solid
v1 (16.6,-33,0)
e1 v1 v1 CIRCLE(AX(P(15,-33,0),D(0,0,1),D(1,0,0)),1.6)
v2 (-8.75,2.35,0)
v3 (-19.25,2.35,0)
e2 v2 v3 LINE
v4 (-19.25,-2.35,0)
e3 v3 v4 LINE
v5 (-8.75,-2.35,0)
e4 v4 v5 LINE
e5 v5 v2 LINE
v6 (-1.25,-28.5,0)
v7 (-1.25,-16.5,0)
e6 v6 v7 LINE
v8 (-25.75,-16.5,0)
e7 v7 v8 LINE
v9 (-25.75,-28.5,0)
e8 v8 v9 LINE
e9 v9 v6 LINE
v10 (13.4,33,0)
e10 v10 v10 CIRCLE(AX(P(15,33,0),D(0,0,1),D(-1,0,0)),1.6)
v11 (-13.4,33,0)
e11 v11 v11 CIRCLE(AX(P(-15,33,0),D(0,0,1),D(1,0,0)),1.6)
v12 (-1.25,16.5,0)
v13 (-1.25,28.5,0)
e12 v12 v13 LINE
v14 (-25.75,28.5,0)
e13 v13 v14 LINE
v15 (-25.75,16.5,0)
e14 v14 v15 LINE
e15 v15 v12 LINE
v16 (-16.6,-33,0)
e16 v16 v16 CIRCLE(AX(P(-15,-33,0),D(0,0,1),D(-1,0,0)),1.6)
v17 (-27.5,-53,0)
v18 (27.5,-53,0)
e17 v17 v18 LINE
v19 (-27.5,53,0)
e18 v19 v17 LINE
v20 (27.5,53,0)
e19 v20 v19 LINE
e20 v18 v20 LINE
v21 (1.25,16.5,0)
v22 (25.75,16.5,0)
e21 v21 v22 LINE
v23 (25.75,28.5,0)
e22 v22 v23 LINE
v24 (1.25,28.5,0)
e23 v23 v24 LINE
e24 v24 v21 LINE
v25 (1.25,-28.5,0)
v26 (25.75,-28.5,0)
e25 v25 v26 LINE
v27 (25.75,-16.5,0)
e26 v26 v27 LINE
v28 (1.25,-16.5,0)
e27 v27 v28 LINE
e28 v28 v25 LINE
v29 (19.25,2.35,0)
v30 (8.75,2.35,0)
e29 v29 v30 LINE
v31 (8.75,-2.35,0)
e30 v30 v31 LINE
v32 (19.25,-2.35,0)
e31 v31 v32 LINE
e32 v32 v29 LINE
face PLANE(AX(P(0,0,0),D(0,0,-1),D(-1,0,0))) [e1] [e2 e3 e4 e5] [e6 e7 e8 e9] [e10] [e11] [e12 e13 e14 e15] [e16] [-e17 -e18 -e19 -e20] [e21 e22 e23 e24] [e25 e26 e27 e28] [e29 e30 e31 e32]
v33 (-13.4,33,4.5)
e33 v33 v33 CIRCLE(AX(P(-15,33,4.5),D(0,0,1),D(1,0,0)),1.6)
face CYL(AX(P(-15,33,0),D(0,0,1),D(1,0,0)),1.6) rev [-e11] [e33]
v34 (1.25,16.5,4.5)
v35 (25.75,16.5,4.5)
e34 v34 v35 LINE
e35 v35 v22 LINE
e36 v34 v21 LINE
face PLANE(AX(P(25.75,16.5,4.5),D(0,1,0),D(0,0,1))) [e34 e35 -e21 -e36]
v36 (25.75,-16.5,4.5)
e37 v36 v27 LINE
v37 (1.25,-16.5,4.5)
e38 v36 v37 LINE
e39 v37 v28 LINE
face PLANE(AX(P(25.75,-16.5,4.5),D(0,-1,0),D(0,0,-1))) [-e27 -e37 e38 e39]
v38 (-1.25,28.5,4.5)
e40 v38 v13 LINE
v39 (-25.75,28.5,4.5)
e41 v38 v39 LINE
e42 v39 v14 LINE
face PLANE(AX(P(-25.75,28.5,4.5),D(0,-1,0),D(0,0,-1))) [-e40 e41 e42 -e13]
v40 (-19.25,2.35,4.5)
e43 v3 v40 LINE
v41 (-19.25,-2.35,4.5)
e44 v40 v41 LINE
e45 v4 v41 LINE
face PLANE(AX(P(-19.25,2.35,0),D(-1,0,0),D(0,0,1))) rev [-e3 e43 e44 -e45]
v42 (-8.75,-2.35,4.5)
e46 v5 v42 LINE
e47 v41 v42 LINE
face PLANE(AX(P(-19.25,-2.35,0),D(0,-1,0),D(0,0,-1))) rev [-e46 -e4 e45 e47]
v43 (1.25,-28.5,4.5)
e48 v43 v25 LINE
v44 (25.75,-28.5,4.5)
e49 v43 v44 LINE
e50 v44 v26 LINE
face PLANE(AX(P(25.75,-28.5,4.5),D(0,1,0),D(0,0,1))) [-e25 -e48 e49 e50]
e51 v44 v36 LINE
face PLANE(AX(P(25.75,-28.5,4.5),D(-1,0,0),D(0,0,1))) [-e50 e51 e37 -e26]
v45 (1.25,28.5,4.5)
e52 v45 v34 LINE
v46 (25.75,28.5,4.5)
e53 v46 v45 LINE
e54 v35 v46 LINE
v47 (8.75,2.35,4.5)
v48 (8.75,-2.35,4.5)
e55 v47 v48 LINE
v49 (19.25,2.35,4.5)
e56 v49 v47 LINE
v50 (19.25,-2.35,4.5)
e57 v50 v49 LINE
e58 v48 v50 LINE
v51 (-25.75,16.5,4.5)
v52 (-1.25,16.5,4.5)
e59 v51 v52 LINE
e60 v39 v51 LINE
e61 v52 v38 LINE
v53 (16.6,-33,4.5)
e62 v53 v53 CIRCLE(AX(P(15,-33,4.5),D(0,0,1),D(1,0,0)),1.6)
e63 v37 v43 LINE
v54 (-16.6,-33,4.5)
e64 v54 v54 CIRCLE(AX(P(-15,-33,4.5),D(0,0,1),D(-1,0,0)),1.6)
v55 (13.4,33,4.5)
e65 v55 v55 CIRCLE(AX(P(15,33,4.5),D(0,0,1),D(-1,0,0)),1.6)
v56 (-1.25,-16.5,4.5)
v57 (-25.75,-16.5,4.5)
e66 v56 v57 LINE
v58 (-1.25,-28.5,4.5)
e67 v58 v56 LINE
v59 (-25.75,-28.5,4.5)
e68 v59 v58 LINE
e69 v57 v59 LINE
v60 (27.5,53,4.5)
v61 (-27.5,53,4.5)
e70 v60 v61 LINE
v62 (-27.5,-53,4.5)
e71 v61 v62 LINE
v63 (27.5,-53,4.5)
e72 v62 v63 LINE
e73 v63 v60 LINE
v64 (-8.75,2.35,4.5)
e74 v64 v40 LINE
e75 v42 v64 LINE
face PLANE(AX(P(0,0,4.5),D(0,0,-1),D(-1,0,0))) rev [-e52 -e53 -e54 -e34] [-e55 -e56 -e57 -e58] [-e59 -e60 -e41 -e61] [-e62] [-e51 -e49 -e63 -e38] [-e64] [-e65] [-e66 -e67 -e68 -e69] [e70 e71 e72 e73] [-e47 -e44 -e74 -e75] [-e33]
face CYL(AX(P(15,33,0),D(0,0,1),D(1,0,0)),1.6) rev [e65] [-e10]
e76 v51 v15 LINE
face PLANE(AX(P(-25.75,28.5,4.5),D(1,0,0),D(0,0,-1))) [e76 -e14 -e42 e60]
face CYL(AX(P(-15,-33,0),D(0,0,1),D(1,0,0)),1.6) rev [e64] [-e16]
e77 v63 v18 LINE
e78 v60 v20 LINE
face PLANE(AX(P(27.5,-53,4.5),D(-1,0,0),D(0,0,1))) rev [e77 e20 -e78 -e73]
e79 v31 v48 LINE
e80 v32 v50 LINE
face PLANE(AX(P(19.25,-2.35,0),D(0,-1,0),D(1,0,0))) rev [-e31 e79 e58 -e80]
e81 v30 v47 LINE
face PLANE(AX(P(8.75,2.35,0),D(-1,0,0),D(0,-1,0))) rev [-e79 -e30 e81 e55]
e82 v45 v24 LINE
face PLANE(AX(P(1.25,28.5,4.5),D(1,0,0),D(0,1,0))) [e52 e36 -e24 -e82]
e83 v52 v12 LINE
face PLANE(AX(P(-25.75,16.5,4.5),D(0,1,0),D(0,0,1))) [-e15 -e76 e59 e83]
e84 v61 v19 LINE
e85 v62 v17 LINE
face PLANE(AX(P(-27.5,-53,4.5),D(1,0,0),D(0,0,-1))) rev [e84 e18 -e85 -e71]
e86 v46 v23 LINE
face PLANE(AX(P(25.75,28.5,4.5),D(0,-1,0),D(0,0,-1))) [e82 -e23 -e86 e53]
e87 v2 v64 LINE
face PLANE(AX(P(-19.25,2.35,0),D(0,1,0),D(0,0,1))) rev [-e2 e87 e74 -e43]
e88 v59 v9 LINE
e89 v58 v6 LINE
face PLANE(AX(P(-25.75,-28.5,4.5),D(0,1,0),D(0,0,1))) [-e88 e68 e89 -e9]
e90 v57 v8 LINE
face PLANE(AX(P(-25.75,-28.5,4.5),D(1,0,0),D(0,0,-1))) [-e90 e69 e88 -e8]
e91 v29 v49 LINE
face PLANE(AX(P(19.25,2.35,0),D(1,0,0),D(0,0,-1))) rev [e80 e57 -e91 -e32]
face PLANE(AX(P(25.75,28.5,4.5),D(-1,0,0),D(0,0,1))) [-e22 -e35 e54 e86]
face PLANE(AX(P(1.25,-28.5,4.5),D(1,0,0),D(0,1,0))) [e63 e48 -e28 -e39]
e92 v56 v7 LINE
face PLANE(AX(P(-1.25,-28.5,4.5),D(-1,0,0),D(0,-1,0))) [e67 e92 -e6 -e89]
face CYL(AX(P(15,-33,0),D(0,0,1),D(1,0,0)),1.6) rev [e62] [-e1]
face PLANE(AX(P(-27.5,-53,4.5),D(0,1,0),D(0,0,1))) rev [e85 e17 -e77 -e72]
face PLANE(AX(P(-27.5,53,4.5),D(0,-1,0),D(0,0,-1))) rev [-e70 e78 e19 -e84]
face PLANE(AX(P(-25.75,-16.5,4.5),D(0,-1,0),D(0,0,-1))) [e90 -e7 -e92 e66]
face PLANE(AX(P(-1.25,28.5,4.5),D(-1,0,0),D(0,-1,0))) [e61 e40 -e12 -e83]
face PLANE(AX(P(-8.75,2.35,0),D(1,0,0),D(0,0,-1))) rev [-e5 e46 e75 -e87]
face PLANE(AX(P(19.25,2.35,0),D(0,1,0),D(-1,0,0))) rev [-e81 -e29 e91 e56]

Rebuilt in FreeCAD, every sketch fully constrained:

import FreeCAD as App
import Part
import Sketcher

V = App.Vector

doc = App.newDocument("Part")
body = doc.addObject("PartDesign::Body", "Body")

sketch1 = body.newObject("Sketcher::SketchObject", "Sketch")
sketch1.AttachmentSupport = (doc.getObject("XY_Plane"), [""])
sketch1.MapMode = "FlatFace"
sketch1.addGeometry(Part.LineSegment(V(-28, 53, 0), V(-28, -53, 0)), False)
sketch1.addGeometry(Part.LineSegment(V(-28, -53, 0), V(28, -53, 0)), False)
sketch1.addGeometry(Part.LineSegment(V(28, -53, 0), V(28, 53, 0)), False)
sketch1.addGeometry(Part.LineSegment(V(28, 53, 0), V(-28, 53, 0)), False)
sketch1.addGeometry(Part.LineSegment(V(-1, -28, 0), V(-26, -28, 0)), False)
sketch1.addGeometry(Part.LineSegment(V(-26, -28, 0), V(-26, -16, 0)), False)
sketch1.addGeometry(Part.LineSegment(V(-26, -16, 0), V(-1, -16, 0)), False)
sketch1.addGeometry(Part.LineSegment(V(-1, -16, 0), V(-1, -28, 0)), False)
sketch1.addGeometry(Part.LineSegment(V(26, -28, 0), V(1, -28, 0)), False)
sketch1.addGeometry(Part.LineSegment(V(1, -28, 0), V(1, -16, 0)), False)
sketch1.addGeometry(Part.LineSegment(V(1, -16, 0), V(26, -16, 0)), False)
sketch1.addGeometry(Part.LineSegment(V(26, -16, 0), V(26, -28, 0)), False)
sketch1.addGeometry(Part.LineSegment(V(-1, 16, 0), V(-26, 16, 0)), False)
sketch1.addGeometry(Part.LineSegment(V(-26, 16, 0), V(-26, 28, 0)), False)
sketch1.addGeometry(Part.LineSegment(V(-26, 28, 0), V(-1, 28, 0)), False)
sketch1.addGeometry(Part.LineSegment(V(-1, 28, 0), V(-1, 16, 0)), False)
sketch1.addGeometry(Part.LineSegment(V(26, 16, 0), V(1, 16, 0)), False)
sketch1.addGeometry(Part.LineSegment(V(1, 16, 0), V(1, 28, 0)), False)
sketch1.addGeometry(Part.LineSegment(V(1, 28, 0), V(26, 28, 0)), False)
sketch1.addGeometry(Part.LineSegment(V(26, 28, 0), V(26, 16, 0)), False)
sketch1.addConstraint(Sketcher.Constraint("Coincident", 0, 2, 1, 1))
sketch1.addConstraint(Sketcher.Constraint("Coincident", 1, 2, 2, 1))
sketch1.addConstraint(Sketcher.Constraint("Coincident", 2, 2, 3, 1))
sketch1.addConstraint(Sketcher.Constraint("Coincident", 3, 2, 0, 1))
sketch1.addConstraint(Sketcher.Constraint("Coincident", 4, 2, 5, 1))
sketch1.addConstraint(Sketcher.Constraint("Coincident", 5, 2, 6, 1))
sketch1.addConstraint(Sketcher.Constraint("Coincident", 6, 2, 7, 1))
sketch1.addConstraint(Sketcher.Constraint("Coincident", 7, 2, 4, 1))
sketch1.addConstraint(Sketcher.Constraint("Coincident", 8, 2, 9, 1))
sketch1.addConstraint(Sketcher.Constraint("Coincident", 9, 2, 10, 1))
sketch1.addConstraint(Sketcher.Constraint("Coincident", 10, 2, 11, 1))
sketch1.addConstraint(Sketcher.Constraint("Coincident", 11, 2, 8, 1))
sketch1.addConstraint(Sketcher.Constraint("Coincident", 12, 2, 13, 1))
sketch1.addConstraint(Sketcher.Constraint("Coincident", 13, 2, 14, 1))
sketch1.addConstraint(Sketcher.Constraint("Coincident", 14, 2, 15, 1))
sketch1.addConstraint(Sketcher.Constraint("Coincident", 15, 2, 12, 1))
sketch1.addConstraint(Sketcher.Constraint("Coincident", 16, 2, 17, 1))
sketch1.addConstraint(Sketcher.Constraint("Coincident", 17, 2, 18, 1))
sketch1.addConstraint(Sketcher.Constraint("Coincident", 18, 2, 19, 1))
sketch1.addConstraint(Sketcher.Constraint("Coincident", 19, 2, 16, 1))
sketch1.addConstraint(Sketcher.Constraint("Vertical", 0))
sketch1.addConstraint(Sketcher.Constraint("Horizontal", 1))
sketch1.addConstraint(Sketcher.Constraint("Vertical", 2))
sketch1.addConstraint(Sketcher.Constraint("Horizontal", 3))
sketch1.addConstraint(Sketcher.Constraint("Horizontal", 4))
sketch1.addConstraint(Sketcher.Constraint("Vertical", 5))
sketch1.addConstraint(Sketcher.Constraint("Horizontal", 6))
sketch1.addConstraint(Sketcher.Constraint("Vertical", 7))
sketch1.addConstraint(Sketcher.Constraint("Horizontal", 8))
sketch1.addConstraint(Sketcher.Constraint("Vertical", 9))
sketch1.addConstraint(Sketcher.Constraint("Horizontal", 10))
sketch1.addConstraint(Sketcher.Constraint("Vertical", 11))
sketch1.addConstraint(Sketcher.Constraint("Horizontal", 12))
sketch1.addConstraint(Sketcher.Constraint("Vertical", 13))
sketch1.addConstraint(Sketcher.Constraint("Horizontal", 14))
sketch1.addConstraint(Sketcher.Constraint("Vertical", 15))
sketch1.addConstraint(Sketcher.Constraint("Horizontal", 16))
sketch1.addConstraint(Sketcher.Constraint("Vertical", 17))
sketch1.addConstraint(Sketcher.Constraint("Horizontal", 18))
sketch1.addConstraint(Sketcher.Constraint("Vertical", 19))
sketch1.addConstraint(Sketcher.Constraint("Symmetric", 0, 2, 2, 2, -1, 1))
sketch1.addConstraint(Sketcher.Constraint("Symmetric", 10, 2, 12, 2, -1, 1))
sketch1.addConstraint(Sketcher.Constraint("Symmetric", 8, 2, 14, 2, -1, 1))
sketch1.addConstraint(Sketcher.Constraint("Symmetric", 6, 2, 16, 2, -1, 1))
sketch1.addConstraint(Sketcher.Constraint("Symmetric", 4, 2, 18, 2, -1, 1))
sketch1.addConstraint(Sketcher.Constraint("Symmetric", 7, 2, 8, 2, -2))
sketch1.addConstraint(Sketcher.Constraint("Symmetric", 5, 2, 10, 2, -2))
sketch1.addConstraint(Sketcher.Constraint("DistanceX", 1, 1, 1, 2, 55.0))
sketch1.addConstraint(Sketcher.Constraint("DistanceY", 0, 2, 0, 1, 106.0))
sketch1.addConstraint(Sketcher.Constraint("DistanceY", 5, 1, 5, 2, 12.0))
sketch1.addConstraint(Sketcher.Constraint("DistanceX", 4, 2, 4, 1, 24.5))
sketch1.addConstraint(Sketcher.Constraint("DistanceX", 4, 2, 8, 2, 27.0))
sketch1.addConstraint(Sketcher.Constraint("DistanceY", 5, 2, 12, 2, 33.0))
pad1 = body.newObject("PartDesign::Pad", "Pad")
pad1.Profile = sketch1
pad1.Length = 4.5

sketch2 = body.newObject("Sketcher::SketchObject", "Sketch001")
sketch2.AttachmentSupport = (doc.getObject("XY_Plane"), [""])
sketch2.MapMode = "FlatFace"
sketch2.AttachmentOffset = App.Placement(V(0, 0, 4.5), App.Rotation())
sketch2.addGeometry(Part.Circle(V(-15, 33, 0), V(0, 0, 1), 1.6), False)
sketch2.addGeometry(Part.Circle(V(15, 33, 0), V(0, 0, 1), 1.6), False)
sketch2.addGeometry(Part.Circle(V(15, -33, 0), V(0, 0, 1), 1.6), False)
sketch2.addGeometry(Part.Circle(V(-15, -33, 0), V(0, 0, 1), 1.6), False)
sketch2.addConstraint(Sketcher.Constraint("Equal", 0, 1))
sketch2.addConstraint(Sketcher.Constraint("Equal", 1, 2))
sketch2.addConstraint(Sketcher.Constraint("Equal", 2, 3))
sketch2.addConstraint(Sketcher.Constraint("Symmetric", 0, 3, 2, 3, -1, 1))
sketch2.addConstraint(Sketcher.Constraint("Symmetric", 1, 3, 3, 3, -1, 1))
sketch2.addConstraint(Sketcher.Constraint("Symmetric", 0, 3, 1, 3, -2))
sketch2.addConstraint(Sketcher.Constraint("Diameter", 0, 3.2))
sketch2.addConstraint(Sketcher.Constraint("DistanceX", 0, 3, -1, 1, 15.0))
sketch2.addConstraint(Sketcher.Constraint("DistanceY", -1, 1, 0, 3, 33.0))
pocket1 = body.newObject("PartDesign::Pocket", "Pocket")
pocket1.Profile = sketch2
pocket1.Type = "ThroughAll"

sketch3 = body.newObject("Sketcher::SketchObject", "Sketch002")
sketch3.AttachmentSupport = (doc.getObject("XY_Plane"), [""])
sketch3.MapMode = "FlatFace"
sketch3.AttachmentOffset = App.Placement(V(0, 0, 4.5), App.Rotation())
sketch3.addGeometry(Part.LineSegment(V(-19.2, 2.4, 0), V(-19.2, -2.4, 0)), False)
sketch3.addGeometry(Part.LineSegment(V(-19.2, -2.4, 0), V(-8.8, -2.4, 0)), False)
sketch3.addGeometry(Part.LineSegment(V(-8.8, -2.4, 0), V(-8.8, 2.4, 0)), False)
sketch3.addGeometry(Part.LineSegment(V(-8.8, 2.4, 0), V(-19.2, 2.4, 0)), False)
sketch3.addGeometry(Part.LineSegment(V(8.8, 2.4, 0), V(8.8, -2.4, 0)), False)
sketch3.addGeometry(Part.LineSegment(V(8.8, -2.4, 0), V(19.2, -2.4, 0)), False)
sketch3.addGeometry(Part.LineSegment(V(19.2, -2.4, 0), V(19.2, 2.4, 0)), False)
sketch3.addGeometry(Part.LineSegment(V(19.2, 2.4, 0), V(8.8, 2.4, 0)), False)
sketch3.addConstraint(Sketcher.Constraint("Coincident", 0, 2, 1, 1))
sketch3.addConstraint(Sketcher.Constraint("Coincident", 1, 2, 2, 1))
sketch3.addConstraint(Sketcher.Constraint("Coincident", 2, 2, 3, 1))
sketch3.addConstraint(Sketcher.Constraint("Coincident", 3, 2, 0, 1))
sketch3.addConstraint(Sketcher.Constraint("Coincident", 4, 2, 5, 1))
sketch3.addConstraint(Sketcher.Constraint("Coincident", 5, 2, 6, 1))
sketch3.addConstraint(Sketcher.Constraint("Coincident", 6, 2, 7, 1))
sketch3.addConstraint(Sketcher.Constraint("Coincident", 7, 2, 4, 1))
sketch3.addConstraint(Sketcher.Constraint("Vertical", 0))
sketch3.addConstraint(Sketcher.Constraint("Horizontal", 1))
sketch3.addConstraint(Sketcher.Constraint("Vertical", 2))
sketch3.addConstraint(Sketcher.Constraint("Horizontal", 3))
sketch3.addConstraint(Sketcher.Constraint("Vertical", 4))
sketch3.addConstraint(Sketcher.Constraint("Horizontal", 5))
sketch3.addConstraint(Sketcher.Constraint("Vertical", 6))
sketch3.addConstraint(Sketcher.Constraint("Horizontal", 7))
sketch3.addConstraint(Sketcher.Constraint("Symmetric", 2, 2, 4, 2, -1, 1))
sketch3.addConstraint(Sketcher.Constraint("Symmetric", 0, 2, 6, 2, -1, 1))
sketch3.addConstraint(Sketcher.Constraint("Horizontal", 1, 2, 4, 2))
sketch3.addConstraint(Sketcher.Constraint("DistanceX", 1, 1, 1, 2, 10.5))
sketch3.addConstraint(Sketcher.Constraint("DistanceY", 0, 2, 0, 1, 4.7))
sketch3.addConstraint(Sketcher.Constraint("DistanceX", 0, 2, 4, 2, 28.0))
pocket2 = body.newObject("PartDesign::Pocket", "Pocket001")
pocket2.Profile = sketch3
pocket2.Type = "ThroughAll"

doc.recompute()
